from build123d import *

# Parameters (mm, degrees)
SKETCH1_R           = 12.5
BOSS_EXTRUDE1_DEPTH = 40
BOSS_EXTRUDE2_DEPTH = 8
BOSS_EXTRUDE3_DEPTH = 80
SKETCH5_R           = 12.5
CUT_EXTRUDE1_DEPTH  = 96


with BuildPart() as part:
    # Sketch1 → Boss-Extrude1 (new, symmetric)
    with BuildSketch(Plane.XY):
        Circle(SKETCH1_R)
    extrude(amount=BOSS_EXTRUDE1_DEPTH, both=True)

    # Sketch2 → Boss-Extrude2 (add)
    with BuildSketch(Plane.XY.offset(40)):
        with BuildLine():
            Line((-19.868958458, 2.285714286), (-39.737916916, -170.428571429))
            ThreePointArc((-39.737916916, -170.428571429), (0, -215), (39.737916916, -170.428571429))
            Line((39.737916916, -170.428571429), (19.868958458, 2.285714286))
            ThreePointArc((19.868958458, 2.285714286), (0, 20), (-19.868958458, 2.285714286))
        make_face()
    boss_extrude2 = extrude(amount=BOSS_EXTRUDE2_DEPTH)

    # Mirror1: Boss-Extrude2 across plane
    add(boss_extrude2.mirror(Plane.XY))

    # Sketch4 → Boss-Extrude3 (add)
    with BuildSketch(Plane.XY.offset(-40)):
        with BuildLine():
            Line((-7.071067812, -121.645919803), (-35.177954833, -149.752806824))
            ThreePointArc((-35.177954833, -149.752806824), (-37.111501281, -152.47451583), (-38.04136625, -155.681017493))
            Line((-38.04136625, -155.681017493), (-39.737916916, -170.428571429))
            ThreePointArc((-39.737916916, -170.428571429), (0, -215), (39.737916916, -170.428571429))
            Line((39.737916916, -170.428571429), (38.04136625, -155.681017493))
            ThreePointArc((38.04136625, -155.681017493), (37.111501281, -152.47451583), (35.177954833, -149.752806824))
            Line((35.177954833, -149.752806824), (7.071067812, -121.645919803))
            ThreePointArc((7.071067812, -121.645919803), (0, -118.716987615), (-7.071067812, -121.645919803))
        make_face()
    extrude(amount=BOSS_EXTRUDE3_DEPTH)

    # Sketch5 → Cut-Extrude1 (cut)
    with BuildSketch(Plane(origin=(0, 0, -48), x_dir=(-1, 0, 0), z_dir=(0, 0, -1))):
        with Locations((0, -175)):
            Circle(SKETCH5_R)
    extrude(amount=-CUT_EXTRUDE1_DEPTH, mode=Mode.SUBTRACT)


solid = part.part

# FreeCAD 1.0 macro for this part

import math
import FreeCAD as App
import Part
import Sketcher
Q = App.Units.Quantity

doc = App.newDocument("Part")
body = doc.addObject("PartDesign::Body", "Body")

# Sketch on XY plane
sketch1 = body.newObject("Sketcher::SketchObject", "Sketch")
sketch1.AttachmentSupport = (doc.getObject("XY_Plane"), [""])
sketch1.MapMode = "FlatFace"
sketch1.addGeometry(Part.Circle(App.Vector(0, 0, 0), App.Vector(0, 0, 1), 12), False)
sketch1.addConstraint([
    Sketcher.Constraint("Coincident", 0, 3, -1, 1),
    Sketcher.Constraint("Diameter", 0, Q("25 mm")),
])
pad1 = body.newObject("PartDesign::Pad", "Pad")
pad1.Profile = sketch1
pad1.Length = 80
pad1.Midplane = True

# Sketch on XY plane
sketch2 = body.newObject("Sketcher::SketchObject", "Sketch001")
sketch2.AttachmentSupport = (doc.getObject("XY_Plane"), [""])
sketch2.MapMode = "FlatFace"
sketch2.AttachmentOffset = App.Placement(App.Vector(0, 0, 40), App.Rotation())
sketch2.addGeometry([
    Part.LineSegment(App.Vector(-20, 2, 0), App.Vector(-40, -170, 0)),
    Part.ArcOfCircle(Part.Circle(App.Vector(0, -175, 0), App.Vector(0, 0, 1), 40), math.radians(173), math.radians(367)),
    Part.LineSegment(App.Vector(40, -170, 0), App.Vector(20, 2, 0)),
    Part.ArcOfCircle(Part.Circle(App.Vector(0, 0, 0), App.Vector(0, 0, 1), 20), math.radians(7), math.radians(173)),
], False)
sketch2.addConstraint([
    Sketcher.Constraint("Tangent", 0, 2, 1, 1),
    Sketcher.Constraint("Tangent", 1, 2, 2, 1),
    Sketcher.Constraint("Tangent", 2, 2, 3, 1),
    Sketcher.Constraint("Tangent", 3, 2, 0, 1),
    Sketcher.Constraint("Coincident", 3, 3, -1, 1),
    Sketcher.Constraint("PointOnObject", 1, 3, -2),
    Sketcher.Constraint("Radius", 1, Q("40 mm")),
    Sketcher.Constraint("Radius", 3, Q("20 mm")),
    Sketcher.Constraint("DistanceY", 1, 3, -1, 1, Q("175 mm")),
])
pad2 = body.newObject("PartDesign::Pad", "Pad001")
pad2.Profile = sketch2
pad2.Length = 8
doc.recompute()

mirrored = body.newObject("PartDesign::Mirrored", "Mirrored")
mirrored.Originals = [pad2]
mirrored.MirrorPlane = (doc.getObject("XY_Plane"), [""])
body.Tip = mirrored

# Sketch on XY plane
sketch3 = body.newObject("Sketcher::SketchObject", "Sketch002")
sketch3.AttachmentSupport = (doc.getObject("XY_Plane"), [""])
sketch3.MapMode = "FlatFace"
sketch3.AttachmentOffset = App.Placement(App.Vector(0, 0, -40), App.Rotation())
sketch3.addGeometry([
    Part.LineSegment(App.Vector(-7.071068, -121.64592, 0), App.Vector(-35.177955, -149.752807, 0)),  # 0
    Part.ArcOfCircle(Part.Circle(App.Vector(-28.106887, -156.823875, 0), App.Vector(0, 0, 1), 10), math.radians(135), math.radians(173.437572)),  # 1
    Part.LineSegment(App.Vector(-38.041366, -155.681017, 0), App.Vector(-39.737917, -170.428571, 0)),  # 2
    Part.ArcOfCircle(Part.Circle(App.Vector(0, -175, 0), App.Vector(0, 0, 1), 40), math.radians(173.437572), math.radians(366.562428)),  # 3
    Part.LineSegment(App.Vector(39.737917, -170.428571, 0), App.Vector(38.041366, -155.681017, 0)),  # 4
    Part.ArcOfCircle(Part.Circle(App.Vector(28.106887, -156.823875, 0), App.Vector(0, 0, 1), 10), math.radians(6.562428), math.radians(45)),  # 5
    Part.LineSegment(App.Vector(35.177955, -149.752807, 0), App.Vector(7.071068, -121.64592, 0)),  # 6
    Part.ArcOfCircle(Part.Circle(App.Vector(0, -128.716988, 0), App.Vector(0, 0, 1), 10), math.radians(45), math.radians(135)),  # 7
], False)
sketch3.addConstraint([
    Sketcher.Constraint("Coincident", 0, 2, 1, 1),
    Sketcher.Constraint("Coincident", 1, 2, 2, 1),
    Sketcher.Constraint("Coincident", 2, 2, 3, 1),
    Sketcher.Constraint("Coincident", 3, 2, 4, 1),
    Sketcher.Constraint("Coincident", 4, 2, 5, 1),
    Sketcher.Constraint("Coincident", 5, 2, 6, 1),
    Sketcher.Constraint("Coincident", 6, 2, 7, 1),
    Sketcher.Constraint("Coincident", 7, 2, 0, 1),
    Sketcher.Constraint("PointOnObject", 3, 3, -2),
    Sketcher.Constraint("PointOnObject", 7, 3, -2),
    Sketcher.Constraint("Radius", 1, Q("10 mm")),
    Sketcher.Constraint("Radius", 3, Q("40 mm")),
    Sketcher.Constraint("Radius", 5, Q("10 mm")),
    Sketcher.Constraint("Radius", 7, Q("10 mm")),
    Sketcher.Constraint("DistanceY", 3, 3, -1, 1, Q("175 mm")),
    Sketcher.Constraint("DistanceX", 6, 2, 4, 2, Q("30.970298 mm")),
    Sketcher.Constraint("DistanceX", 1, 2, 7, 2, Q("30.970298 mm")),
    Sketcher.Constraint("Distance", 0, Q("39.749141 mm")),
    Sketcher.Constraint("Distance", 2, Q("14.844818 mm")),
    Sketcher.Constraint("Distance", 4, Q("14.844818 mm")),
    Sketcher.Constraint("Distance", 6, Q("39.749141 mm")),
    Sketcher.Constraint("DistanceY", 2, 2, -1, 1, Q("170.428571 mm")),
    Sketcher.Constraint("DistanceY", 3, 2, -1, 1, Q("170.428571 mm")),
    Sketcher.Constraint("DistanceY", 6, 2, -1, 1, Q("121.64592 mm")),
    Sketcher.Constraint("DistanceY", 7, 2, -1, 1, Q("121.64592 mm")),
    Sketcher.Constraint("DistanceY", 0, 2, 7, 3, Q("21.035819 mm")),
    Sketcher.Constraint("DistanceX", 0, 2, 5, 3, Q("63.284842 mm")),
    Sketcher.Constraint("DistanceX", 1, 2, 0, 2, Q("2.863411 mm")),
])
pad3 = body.newObject("PartDesign::Pad", "Pad002")
pad3.Profile = sketch3
pad3.Length = 80

# Sketch on XY plane
sketch4 = body.newObject("Sketcher::SketchObject", "Sketch003")
sketch4.AttachmentSupport = (doc.getObject("XY_Plane"), [""])
sketch4.MapMode = "FlatFace"
sketch4.AttachmentOffset = App.Placement(App.Vector(0, 0, -48), App.Rotation())
sketch4.addGeometry(Part.Circle(App.Vector(0, -175, 0), App.Vector(0, 0, 1), 12), False)
sketch4.addConstraint([
    Sketcher.Constraint("PointOnObject", 0, 3, -2),
    Sketcher.Constraint("Diameter", 0, Q("25 mm")),
    Sketcher.Constraint("DistanceY", 0, 3, -1, 1, Q("175 mm")),
])
pocket1 = body.newObject("PartDesign::Pocket", "Pocket")
pocket1.Profile = sketch4
pocket1.Length = 96
pocket1.Reversed = True

doc.recompute()
